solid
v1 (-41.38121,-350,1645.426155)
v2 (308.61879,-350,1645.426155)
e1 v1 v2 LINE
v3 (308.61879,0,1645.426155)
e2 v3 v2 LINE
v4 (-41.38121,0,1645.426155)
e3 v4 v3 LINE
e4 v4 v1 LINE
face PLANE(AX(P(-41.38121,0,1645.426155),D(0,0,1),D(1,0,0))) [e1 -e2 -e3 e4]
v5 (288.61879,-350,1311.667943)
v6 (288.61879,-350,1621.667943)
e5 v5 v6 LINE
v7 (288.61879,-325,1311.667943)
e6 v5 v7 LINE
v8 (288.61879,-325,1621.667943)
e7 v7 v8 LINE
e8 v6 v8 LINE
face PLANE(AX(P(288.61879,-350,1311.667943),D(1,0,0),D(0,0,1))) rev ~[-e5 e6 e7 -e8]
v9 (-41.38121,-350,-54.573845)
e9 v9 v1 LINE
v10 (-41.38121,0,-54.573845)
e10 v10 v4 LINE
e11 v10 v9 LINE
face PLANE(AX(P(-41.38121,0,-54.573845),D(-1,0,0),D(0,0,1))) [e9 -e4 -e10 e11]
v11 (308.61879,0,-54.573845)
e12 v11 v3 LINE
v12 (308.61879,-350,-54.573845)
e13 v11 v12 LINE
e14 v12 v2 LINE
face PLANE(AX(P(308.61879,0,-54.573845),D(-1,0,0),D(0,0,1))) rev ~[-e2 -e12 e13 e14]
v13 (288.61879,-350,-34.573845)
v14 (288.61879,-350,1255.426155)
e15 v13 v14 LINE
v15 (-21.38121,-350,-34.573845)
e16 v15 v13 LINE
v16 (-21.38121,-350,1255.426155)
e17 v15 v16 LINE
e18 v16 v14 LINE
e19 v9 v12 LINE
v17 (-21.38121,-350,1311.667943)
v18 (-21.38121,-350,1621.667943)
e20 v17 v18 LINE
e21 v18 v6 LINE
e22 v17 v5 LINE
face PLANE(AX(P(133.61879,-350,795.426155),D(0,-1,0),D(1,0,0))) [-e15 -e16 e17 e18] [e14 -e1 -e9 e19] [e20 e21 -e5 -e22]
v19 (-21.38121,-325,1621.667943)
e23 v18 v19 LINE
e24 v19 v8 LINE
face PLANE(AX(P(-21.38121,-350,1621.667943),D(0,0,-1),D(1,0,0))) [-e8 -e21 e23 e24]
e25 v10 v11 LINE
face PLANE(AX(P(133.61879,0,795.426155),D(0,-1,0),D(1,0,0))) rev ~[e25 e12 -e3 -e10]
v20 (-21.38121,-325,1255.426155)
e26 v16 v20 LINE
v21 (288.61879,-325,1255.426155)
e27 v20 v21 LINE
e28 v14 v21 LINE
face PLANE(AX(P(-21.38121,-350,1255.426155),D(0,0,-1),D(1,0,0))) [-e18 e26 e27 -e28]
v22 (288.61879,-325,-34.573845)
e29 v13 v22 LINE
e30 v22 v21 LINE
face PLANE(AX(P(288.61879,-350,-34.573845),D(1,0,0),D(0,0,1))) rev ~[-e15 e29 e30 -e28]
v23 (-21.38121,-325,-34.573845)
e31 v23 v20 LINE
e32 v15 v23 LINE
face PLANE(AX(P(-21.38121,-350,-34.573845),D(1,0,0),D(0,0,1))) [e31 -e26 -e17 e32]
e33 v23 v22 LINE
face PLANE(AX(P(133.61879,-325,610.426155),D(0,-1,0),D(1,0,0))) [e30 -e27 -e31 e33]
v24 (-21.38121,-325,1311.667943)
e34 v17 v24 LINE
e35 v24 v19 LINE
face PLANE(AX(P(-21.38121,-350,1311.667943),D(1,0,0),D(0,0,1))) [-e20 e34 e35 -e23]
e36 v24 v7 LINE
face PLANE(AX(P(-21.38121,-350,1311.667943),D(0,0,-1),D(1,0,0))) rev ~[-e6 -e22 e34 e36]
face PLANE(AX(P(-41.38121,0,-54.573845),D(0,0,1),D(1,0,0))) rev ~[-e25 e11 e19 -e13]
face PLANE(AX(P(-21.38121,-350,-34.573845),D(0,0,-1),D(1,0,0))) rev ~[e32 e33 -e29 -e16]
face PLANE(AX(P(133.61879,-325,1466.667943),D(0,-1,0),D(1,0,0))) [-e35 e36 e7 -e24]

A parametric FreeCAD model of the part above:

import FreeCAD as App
import Part
import Sketcher
from FreeCAD import Vector


def add_polygon(sketch, points):
    """Adds a closed chain of lines whose ends are joined by coincident constraints."""
    first, n = sketch.GeometryCount, len(points)
    for a, b in zip(points, points[1:] + points[:1]):
        sketch.addGeometry(Part.LineSegment(App.Vector(*a, 0), App.Vector(*b, 0)), False)
    for i in range(n):
        sketch.addConstraint(Sketcher.Constraint("Coincident", first + i, 2, first + (i + 1) % n, 1))

doc = App.newDocument("Part")
params = doc.addObject("Spreadsheet::Sheet", "Params")
for row, (alias, value) in enumerate([
    ("sketch1_width", "350 mm"),
    ("sketch1_height", "1700 mm"),
    ("pad1_length", "350 mm"),
    ("sketch2_width", "310 mm"),
    ("sketch2_height", "1290 mm"),
    ("pocket1_length", "25 mm"),
], start=1):
    params.set(f"A{row}", alias)
    params.set(f"B{row}", "=" + value)
    params.setAlias(f"B{row}", alias)

body = doc.addObject("PartDesign::Body", "Body")

# Sketch on XZ plane
sketch1 = body.newObject("Sketcher::SketchObject", "Sketch")
sketch1.AttachmentSupport = (doc.getObject("XZ_Plane"), [""])
sketch1.MapMode = "FlatFace"
add_polygon(sketch1, [(-41, 1645), (-41, -55), (309, -55), (309, 1645)])  # lines 0-3
sketch1.addConstraint(Sketcher.Constraint("Vertical", 0))
sketch1.addConstraint(Sketcher.Constraint("Horizontal", 1))
sketch1.addConstraint(Sketcher.Constraint("Vertical", 2))
sketch1.addConstraint(Sketcher.Constraint("Horizontal", 3))
sketch1.addConstraint(Sketcher.Constraint("DistanceX", 1, 1, 1, 2, 350.0))
sketch1.addConstraint(Sketcher.Constraint("DistanceY", 0, 2, 0, 1, 1700.0))
sketch1.addConstraint(Sketcher.Constraint("DistanceX", 0, 2, -1, 1, 41.38121))
sketch1.addConstraint(Sketcher.Constraint("DistanceY", 0, 2, -1, 1, 54.573845))
sketch1.setExpression("Constraints[8]", "Params.sketch1_width")
sketch1.setExpression("Constraints[9]", "Params.sketch1_height")
pad1 = body.newObject("PartDesign::Pad", "Pad")
pad1.Profile = sketch1
pad1.setExpression("Length", "Params.pad1_length")

# Sketch on XZ plane
sketch2 = body.newObject("Sketcher::SketchObject", "Sketch001")
sketch2.AttachmentSupport = (doc.getObject("XZ_Plane"), [""])
sketch2.MapMode = "FlatFace"
sketch2.AttachmentOffset = App.Placement(Vector(0, 0, 350), App.Rotation())
add_polygon(sketch2, [(-21, 1255), (-21, -35), (289, -35), (289, 1255)])  # lines 0-3
add_polygon(sketch2, [(-21, 1622), (-21, 1312), (289, 1312), (289, 1622)])  # lines 4-7
sketch2.addConstraint(Sketcher.Constraint("Vertical", 0))
sketch2.addConstraint(Sketcher.Constraint("Horizontal", 1))
sketch2.addConstraint(Sketcher.Constraint("Vertical", 2))
sketch2.addConstraint(Sketcher.Constraint("Horizontal", 3))
sketch2.addConstraint(Sketcher.Constraint("Vertical", 4))
sketch2.addConstraint(Sketcher.Constraint("Horizontal", 5))
sketch2.addConstraint(Sketcher.Constraint("Vertical", 6))
sketch2.addConstraint(Sketcher.Constraint("Horizontal", 7))
sketch2.addConstraint(Sketcher.Constraint("Vertical", 3, 2, 4, 2))
sketch2.addConstraint(Sketcher.Constraint("Vertical", 2, 2, 5, 2))
sketch2.addConstraint(Sketcher.Constraint("Equal", 7, 4))
sketch2.addConstraint(Sketcher.Constraint("DistanceX", 1, 1, 1, 2, 310.0))
sketch2.addConstraint(Sketcher.Constraint("DistanceY", 0, 2, 0, 1, 1290.0))
sketch2.addConstraint(Sketcher.Constraint("DistanceX", 0, 2, -1, 1, 21.38121))
sketch2.addConstraint(Sketcher.Constraint("DistanceY", 0, 2, -1, 1, 34.573845))
sketch2.addConstraint(Sketcher.Constraint("DistanceY", -1, 1, 4, 2, 1311.667943))
sketch2.setExpression("Constraints[19]", "Params.sketch2_width")
sketch2.setExpression("Constraints[20]", "Params.sketch2_height")
pocket1 = body.newObject("PartDesign::Pocket", "Pocket")
pocket1.Profile = sketch2
pocket1.setExpression("Length", "Params.pocket1_length")

doc.recompute()
